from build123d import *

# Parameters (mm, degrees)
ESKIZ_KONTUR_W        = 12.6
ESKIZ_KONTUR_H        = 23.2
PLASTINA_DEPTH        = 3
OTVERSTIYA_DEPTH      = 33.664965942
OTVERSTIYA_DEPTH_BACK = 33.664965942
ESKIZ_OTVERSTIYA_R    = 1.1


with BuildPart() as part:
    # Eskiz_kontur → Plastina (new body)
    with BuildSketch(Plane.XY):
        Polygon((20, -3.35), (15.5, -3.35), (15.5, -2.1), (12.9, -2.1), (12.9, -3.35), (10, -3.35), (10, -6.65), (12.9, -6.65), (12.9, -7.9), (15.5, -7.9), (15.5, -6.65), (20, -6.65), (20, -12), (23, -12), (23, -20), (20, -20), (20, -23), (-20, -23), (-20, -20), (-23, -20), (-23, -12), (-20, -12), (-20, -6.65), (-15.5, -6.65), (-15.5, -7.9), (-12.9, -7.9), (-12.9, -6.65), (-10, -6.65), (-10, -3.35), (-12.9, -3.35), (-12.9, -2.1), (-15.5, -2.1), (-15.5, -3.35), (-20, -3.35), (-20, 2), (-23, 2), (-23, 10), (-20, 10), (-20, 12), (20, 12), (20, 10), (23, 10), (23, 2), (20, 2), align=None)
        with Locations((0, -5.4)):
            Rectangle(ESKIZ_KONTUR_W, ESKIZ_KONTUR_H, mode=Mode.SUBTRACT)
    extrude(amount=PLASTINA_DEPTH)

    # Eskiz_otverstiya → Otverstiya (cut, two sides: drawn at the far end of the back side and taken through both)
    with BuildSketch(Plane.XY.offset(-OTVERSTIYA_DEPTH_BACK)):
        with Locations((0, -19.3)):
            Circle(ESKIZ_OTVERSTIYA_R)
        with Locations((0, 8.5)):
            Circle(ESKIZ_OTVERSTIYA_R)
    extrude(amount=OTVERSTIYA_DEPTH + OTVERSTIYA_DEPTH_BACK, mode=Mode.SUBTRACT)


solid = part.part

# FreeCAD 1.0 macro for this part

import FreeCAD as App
import Part
import Sketcher


def add_polygon(sketch, points):
    """Adds a closed chain of lines whose ends are joined by coincident constraints."""
    first, n = sketch.GeometryCount, len(points)
    for a, b in zip(points, points[1:] + points[:1]):
        sketch.addGeometry(Part.LineSegment(App.Vector(*a, 0), App.Vector(*b, 0)), False)
    for i in range(n):
        sketch.addConstraint(Sketcher.Constraint("Coincident", first + i, 2, first + (i + 1) % n, 1))

doc = App.newDocument("Part")
params = doc.addObject("Spreadsheet::Sheet", "Params")
for row, (alias, value) in enumerate([
    ("sketch1_width", "3 mm"),
    ("sketch1_width2", "40 mm"),
    ("sketch1_height", "8 mm"),
    ("sketch1_height2", "2 mm"),
    ("sketch1_width3", "4.5 mm"),
    ("pad1_length", "3 mm"),
    ("sketch2_diameter", "2.2 mm"),
], start=1):
    params.set(f"A{row}", alias)
    params.set(f"B{row}", "=" + value)
    params.setAlias(f"B{row}", alias)

body = doc.addObject("PartDesign::Body", "Body")

# Sketch on XY plane
sketch1 = doc.addObject("Sketcher::SketchObject", "Sketch")
body.addObject(sketch1)
sketch1.AttachmentSupport = (doc.XY_Plane, [""])
sketch1.MapMode = "FlatFace"
add_polygon(sketch1, [(15.5, -3.4), (20, -3.4), (20, 2), (23, 2), (23, 10), (20, 10), (20, 12), (-20, 12), (-20, 10), (-23, 10), (-23, 2), (-20, 2), (-20, -3.4), (-15.5, -3.4), (-15.5, -2.1), (-12.9, -2.1), (-12.9, -3.4), (-10, -3.4), (-10, -6.7), (-12.9, -6.7), (-12.9, -7.9), (-15.5, -7.9), (-15.5, -6.7), (-20, -6.7), (-20, -12), (-23, -12), (-23, -20), (-20, -20), (-20, -23), (20, -23), (20, -20), (23, -20), (23, -12), (20, -12), (20, -6.7), (15.5, -6.7), (15.5, -7.9), (12.9, -7.9), (12.9, -6.7), (10, -6.7), (10, -3.4), (12.9, -3.4), (12.9, -2.1), (15.5, -2.1)])  # lines 0-43
add_polygon(sketch1, [(-6.3, -17), (-6.3, 6.2), (6.3, 6.2), (6.3, -17)])  # lines 44-47
sketch1.addConstraint([
    Sketcher.Constraint("Horizontal", 0),
    Sketcher.Constraint("Vertical", 1),
    Sketcher.Constraint("Horizontal", 2),
    Sketcher.Constraint("Vertical", 3),
    Sketcher.Constraint("Horizontal", 4),
    Sketcher.Constraint("Vertical", 5),
    Sketcher.Constraint("Horizontal", 6),
    Sketcher.Constraint("Vertical", 7),
    Sketcher.Constraint("Horizontal", 8),
    Sketcher.Constraint("Vertical", 9),
    Sketcher.Constraint("Horizontal", 10),
    Sketcher.Constraint("Vertical", 11),
    Sketcher.Constraint("Horizontal", 12),
    Sketcher.Constraint("Vertical", 13),
    Sketcher.Constraint("Horizontal", 14),
    Sketcher.Constraint("Vertical", 15),
    Sketcher.Constraint("Horizontal", 16),
    Sketcher.Constraint("Vertical", 17),
    Sketcher.Constraint("Horizontal", 18),
    Sketcher.Constraint("Vertical", 19),
    Sketcher.Constraint("Horizontal", 20),
    Sketcher.Constraint("Vertical", 21),
    Sketcher.Constraint("Horizontal", 22),
    Sketcher.Constraint("Vertical", 23),
    Sketcher.Constraint("Horizontal", 24),
    Sketcher.Constraint("Vertical", 25),
    Sketcher.Constraint("Horizontal", 26),
    Sketcher.Constraint("Vertical", 27),
    Sketcher.Constraint("Horizontal", 28),
    Sketcher.Constraint("Vertical", 29),
    Sketcher.Constraint("Horizontal", 30),
    Sketcher.Constraint("Vertical", 31),
    Sketcher.Constraint("Horizontal", 32),
    Sketcher.Constraint("Vertical", 33),
    Sketcher.Constraint("Horizontal", 34),
    Sketcher.Constraint("Vertical", 35),
    Sketcher.Constraint("Horizontal", 36),
    Sketcher.Constraint("Vertical", 37),
    Sketcher.Constraint("Horizontal", 38),
    Sketcher.Constraint("Vertical", 39),
    Sketcher.Constraint("Horizontal", 40),
    Sketcher.Constraint("Vertical", 41),
    Sketcher.Constraint("Horizontal", 42),
    Sketcher.Constraint("Vertical", 43),
    Sketcher.Constraint("Vertical", 44),
    Sketcher.Constraint("Horizontal", 45),
    Sketcher.Constraint("Vertical", 46),
    Sketcher.Constraint("Horizontal", 47),
    Sketcher.Constraint("Symmetric", 5, 2, 23, 2, -1, 1),
    Sketcher.Constraint("Symmetric", 6, 2, 32, 2, -1, 1),
    Sketcher.Constraint("Symmetric", 4, 2, 7, 2, -2),
    Sketcher.Constraint("Symmetric", 2, 2, 9, 2, -2),
    Sketcher.Constraint("Symmetric", 0, 2, 11, 2, -2),
    Sketcher.Constraint("Symmetric", 26, 2, 29, 2, -2),
    Sketcher.Constraint("Symmetric", 21, 2, 34, 2, -2),
    Sketcher.Constraint("Symmetric", 19, 2, 36, 2, -2),
    Sketcher.Constraint("Symmetric", 17, 2, 38, 2, -2),
    Sketcher.Constraint("Symmetric", 15, 2, 40, 2, -2),
    Sketcher.Constraint("Symmetric", 13, 2, 42, 2, -2),
    Sketcher.Constraint("Horizontal", 12, 2, 15, 2),
    Sketcher.Constraint("Horizontal", 18, 2, 21, 2),
    Sketcher.Constraint("Vertical", 1, 2, 4, 2),
    Sketcher.Constraint("Vertical", 15, 2, 18, 2),
    Sketcher.Constraint("Vertical", 13, 2, 20, 2),
    Sketcher.Constraint("Vertical", 9, 2, 24, 2),
    Sketcher.Constraint("Vertical", 23, 2, 26, 2),
    Sketcher.Constraint("Vertical", 3, 2, 30, 2),
    Sketcher.Constraint("Equal", 15, 19),
    Sketcher.Constraint("Equal", 11, 23),
    Sketcher.Constraint("Equal", 9, 25),
    Sketcher.Constraint("Equal", 32, 27),
    Sketcher.Constraint("DistanceX", 2, 1, 2, 2, 3.0),
    Sketcher.Constraint("DistanceX", 6, 2, 6, 1, 40.0),
    Sketcher.Constraint("DistanceY", 3, 1, 3, 2, 8.0),
    Sketcher.Constraint("DistanceY", 5, 1, 5, 2, 2.0),
    Sketcher.Constraint("DistanceX", 0, 1, 0, 2, 4.5),
    Sketcher.Constraint("DistanceX", 14, 1, 14, 2, 2.6),
    Sketcher.Constraint("DistanceX", 16, 1, 16, 2, 2.9),
    Sketcher.Constraint("DistanceX", 45, 1, 45, 2, 12.6),
    Sketcher.Constraint("DistanceY", 17, 2, 17, 1, 3.3),
    Sketcher.Constraint("DistanceY", 44, 1, 44, 2, 23.2),
    Sketcher.Constraint("DistanceY", -1, 1, 1, 2, 2.0),
    Sketcher.Constraint("DistanceY", 46, 2, -1, 1, 17.0),
    Sketcher.Constraint("DistanceY", 13, 1, 13, 2, 1.25),
    Sketcher.Constraint("DistanceX", 44, 2, -1, 1, 6.3),
])
sketch1.setExpression("Constraints[119]", "Params.sketch1_width")
sketch1.setExpression("Constraints[120]", "Params.sketch1_width2")
sketch1.setExpression("Constraints[121]", "Params.sketch1_height")
sketch1.setExpression("Constraints[122]", "Params.sketch1_height2")
sketch1.setExpression("Constraints[123]", "Params.sketch1_width3")
pad1 = doc.addObject("PartDesign::Pad", "Pad")
body.addObject(pad1)
pad1.Profile = sketch1
pad1.setExpression("Length", "Params.pad1_length")

# Sketch on XY plane
sketch2 = doc.addObject("Sketcher::SketchObject", "Sketch001")
body.addObject(sketch2)
sketch2.AttachmentSupport = (doc.XY_Plane, [""])
sketch2.MapMode = "FlatFace"
sketch2.addGeometry([
    Part.Circle(App.Vector(0, -19.3, 0), App.Vector(0, 0, 1), 1.1),
    Part.Circle(App.Vector(0, 8.5, 0), App.Vector(0, 0, 1), 1.1),
], False)
sketch2.addConstraint([
    Sketcher.Constraint("Equal", 0, 1),
    Sketcher.Constraint("PointOnObject", 0, 3, -2),
    Sketcher.Constraint("PointOnObject", 1, 3, -2),
    Sketcher.Constraint("Diameter", 0, 2.2),
    Sketcher.Constraint("DistanceY", 0, 3, -1, 1, 19.3),
    Sketcher.Constraint("DistanceY", -1, 1, 1, 3, 8.5),
])
sketch2.setExpression("Constraints[3]", "Params.sketch2_diameter")
pocket1 = doc.addObject("PartDesign::Pocket", "Pocket")
body.addObject(pocket1)
pocket1.Profile = sketch2
pocket1.Type = "ThroughAll"
pocket1.Midplane = True

doc.recompute()
